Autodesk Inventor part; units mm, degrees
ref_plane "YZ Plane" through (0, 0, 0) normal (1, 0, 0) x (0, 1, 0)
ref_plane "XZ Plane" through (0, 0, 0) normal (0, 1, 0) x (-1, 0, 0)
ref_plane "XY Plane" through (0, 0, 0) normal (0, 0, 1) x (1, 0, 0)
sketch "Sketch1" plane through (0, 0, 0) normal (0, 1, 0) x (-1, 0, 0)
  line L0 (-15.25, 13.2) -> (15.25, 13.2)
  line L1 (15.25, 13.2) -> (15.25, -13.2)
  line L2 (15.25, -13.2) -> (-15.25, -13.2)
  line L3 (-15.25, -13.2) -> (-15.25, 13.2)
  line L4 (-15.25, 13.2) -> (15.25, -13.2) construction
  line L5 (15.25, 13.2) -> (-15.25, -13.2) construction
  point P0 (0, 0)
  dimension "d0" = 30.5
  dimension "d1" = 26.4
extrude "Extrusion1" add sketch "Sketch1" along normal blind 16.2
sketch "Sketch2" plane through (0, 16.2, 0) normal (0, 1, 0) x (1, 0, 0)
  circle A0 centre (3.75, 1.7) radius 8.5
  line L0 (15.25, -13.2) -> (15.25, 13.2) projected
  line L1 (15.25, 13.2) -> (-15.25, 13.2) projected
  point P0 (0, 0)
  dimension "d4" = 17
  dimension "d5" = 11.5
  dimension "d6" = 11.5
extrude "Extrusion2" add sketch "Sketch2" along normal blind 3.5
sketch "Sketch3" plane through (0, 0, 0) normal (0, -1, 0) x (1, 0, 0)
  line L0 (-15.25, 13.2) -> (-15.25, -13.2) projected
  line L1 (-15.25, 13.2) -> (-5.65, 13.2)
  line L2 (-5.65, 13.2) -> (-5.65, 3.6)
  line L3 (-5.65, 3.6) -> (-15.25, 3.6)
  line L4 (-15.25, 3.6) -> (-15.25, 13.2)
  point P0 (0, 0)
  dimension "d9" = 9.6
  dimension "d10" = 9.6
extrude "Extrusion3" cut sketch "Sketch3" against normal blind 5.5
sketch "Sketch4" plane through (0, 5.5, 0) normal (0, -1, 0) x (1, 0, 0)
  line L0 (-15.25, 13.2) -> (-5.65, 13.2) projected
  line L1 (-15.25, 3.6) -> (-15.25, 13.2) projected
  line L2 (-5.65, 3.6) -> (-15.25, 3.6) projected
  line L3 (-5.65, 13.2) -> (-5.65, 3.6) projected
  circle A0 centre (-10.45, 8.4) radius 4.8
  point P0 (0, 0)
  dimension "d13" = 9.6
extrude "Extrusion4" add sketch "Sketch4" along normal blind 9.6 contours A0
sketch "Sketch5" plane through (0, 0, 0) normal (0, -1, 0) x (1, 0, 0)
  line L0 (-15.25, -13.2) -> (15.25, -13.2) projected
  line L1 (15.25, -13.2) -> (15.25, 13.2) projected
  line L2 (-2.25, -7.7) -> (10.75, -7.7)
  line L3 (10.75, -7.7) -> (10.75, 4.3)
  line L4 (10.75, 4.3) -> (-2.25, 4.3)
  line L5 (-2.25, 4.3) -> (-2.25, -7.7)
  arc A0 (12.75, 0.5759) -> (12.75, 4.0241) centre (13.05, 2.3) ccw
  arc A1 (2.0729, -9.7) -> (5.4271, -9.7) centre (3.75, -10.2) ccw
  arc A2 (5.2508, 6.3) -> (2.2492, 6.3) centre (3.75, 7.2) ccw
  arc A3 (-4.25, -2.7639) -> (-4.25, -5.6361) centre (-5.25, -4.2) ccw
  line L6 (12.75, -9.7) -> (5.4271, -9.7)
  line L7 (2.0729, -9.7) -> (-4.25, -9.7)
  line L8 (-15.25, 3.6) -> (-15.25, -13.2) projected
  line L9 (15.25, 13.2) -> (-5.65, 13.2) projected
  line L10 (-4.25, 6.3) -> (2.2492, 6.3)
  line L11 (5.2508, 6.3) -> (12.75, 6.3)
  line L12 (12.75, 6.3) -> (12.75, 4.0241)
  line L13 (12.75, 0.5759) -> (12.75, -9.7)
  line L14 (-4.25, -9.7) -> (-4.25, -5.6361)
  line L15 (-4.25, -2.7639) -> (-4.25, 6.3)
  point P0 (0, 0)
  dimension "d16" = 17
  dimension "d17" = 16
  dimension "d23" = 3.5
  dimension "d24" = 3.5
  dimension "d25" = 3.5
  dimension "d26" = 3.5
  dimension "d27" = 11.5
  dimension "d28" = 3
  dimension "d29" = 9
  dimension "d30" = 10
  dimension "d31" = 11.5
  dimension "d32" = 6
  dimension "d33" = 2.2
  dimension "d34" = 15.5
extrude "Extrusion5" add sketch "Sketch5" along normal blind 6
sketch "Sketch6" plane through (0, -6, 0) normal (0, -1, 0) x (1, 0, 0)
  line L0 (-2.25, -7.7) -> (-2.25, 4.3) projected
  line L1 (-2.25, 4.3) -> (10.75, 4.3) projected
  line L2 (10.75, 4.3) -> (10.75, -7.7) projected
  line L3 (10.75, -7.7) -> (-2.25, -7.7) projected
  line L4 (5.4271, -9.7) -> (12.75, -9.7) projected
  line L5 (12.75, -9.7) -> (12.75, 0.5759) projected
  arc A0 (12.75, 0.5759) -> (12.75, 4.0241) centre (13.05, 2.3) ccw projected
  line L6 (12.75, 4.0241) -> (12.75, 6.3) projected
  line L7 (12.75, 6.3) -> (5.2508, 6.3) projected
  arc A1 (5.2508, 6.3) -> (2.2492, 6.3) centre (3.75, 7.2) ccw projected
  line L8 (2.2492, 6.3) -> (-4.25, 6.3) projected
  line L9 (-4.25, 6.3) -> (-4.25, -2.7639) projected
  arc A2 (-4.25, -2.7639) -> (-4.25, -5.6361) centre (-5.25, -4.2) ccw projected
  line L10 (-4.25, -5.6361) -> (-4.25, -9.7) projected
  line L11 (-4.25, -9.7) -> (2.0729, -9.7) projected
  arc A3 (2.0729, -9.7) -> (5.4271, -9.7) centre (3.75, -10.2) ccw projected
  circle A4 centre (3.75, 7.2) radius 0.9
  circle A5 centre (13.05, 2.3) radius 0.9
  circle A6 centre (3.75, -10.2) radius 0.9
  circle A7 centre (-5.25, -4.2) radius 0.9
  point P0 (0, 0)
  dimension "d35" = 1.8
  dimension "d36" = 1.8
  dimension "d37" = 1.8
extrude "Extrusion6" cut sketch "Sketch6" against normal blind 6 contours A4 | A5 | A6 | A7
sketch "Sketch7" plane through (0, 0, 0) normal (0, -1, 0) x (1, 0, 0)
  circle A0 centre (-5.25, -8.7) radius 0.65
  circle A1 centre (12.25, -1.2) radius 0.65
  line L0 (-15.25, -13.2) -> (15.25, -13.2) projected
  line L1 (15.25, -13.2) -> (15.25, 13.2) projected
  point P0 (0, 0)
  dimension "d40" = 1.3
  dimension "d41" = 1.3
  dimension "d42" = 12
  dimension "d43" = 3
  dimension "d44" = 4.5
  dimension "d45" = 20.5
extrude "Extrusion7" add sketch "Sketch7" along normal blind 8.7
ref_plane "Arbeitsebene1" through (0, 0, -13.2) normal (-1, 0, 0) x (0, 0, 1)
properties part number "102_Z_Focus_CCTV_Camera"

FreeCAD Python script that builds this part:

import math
import FreeCAD as App
import Part
import Sketcher
Q = App.Units.Quantity

doc = App.newDocument("Part")
body = doc.addObject("PartDesign::Body", "Body")

sketch1 = doc.addObject("Sketcher::SketchObject", "Sketch")
body.addObject(sketch1)
sketch1.AttachmentSupport = (doc.XZ_Plane, [""])
sketch1.MapMode = "FlatFace"
sketch1.addGeometry([
    Part.LineSegment(App.Vector(-15, 13, 0), App.Vector(15, 13, 0)),
    Part.LineSegment(App.Vector(15, 13, 0), App.Vector(15, -13, 0)),
    Part.LineSegment(App.Vector(15, -13, 0), App.Vector(-15, -13, 0)),
    Part.LineSegment(App.Vector(-15, -13, 0), App.Vector(-15, 13, 0)),
], False)
sketch1.addConstraint([
    Sketcher.Constraint("Coincident", 0, 2, 1, 1),
    Sketcher.Constraint("Coincident", 1, 2, 2, 1),
    Sketcher.Constraint("Coincident", 2, 2, 3, 1),
    Sketcher.Constraint("Coincident", 3, 2, 0, 1),
    Sketcher.Constraint("Horizontal", 0),
    Sketcher.Constraint("Vertical", 1),
    Sketcher.Constraint("Horizontal", 2),
    Sketcher.Constraint("Vertical", 3),
    Sketcher.Constraint("Symmetric", 0, 2, 2, 2, -1, 1),
    Sketcher.Constraint("DistanceX", 0, 1, 0, 2, Q("30.5 mm")),
    Sketcher.Constraint("DistanceY", 1, 2, 1, 1, Q("26.4 mm")),
])
pad1 = doc.addObject("PartDesign::Pad", "Pad")
body.addObject(pad1)
pad1.Profile = sketch1
pad1.Length = 16.2
pad1.Reversed = True

sketch2 = doc.addObject("Sketcher::SketchObject", "Sketch001")
body.addObject(sketch2)
sketch2.AttachmentSupport = (doc.XZ_Plane, [""])
sketch2.MapMode = "FlatFace"
sketch2.AttachmentOffset = App.Placement(App.Vector(0, 0, -16.2), App.Rotation())
sketch2.addGeometry(Part.Circle(App.Vector(4, -2, 0), App.Vector(0, 0, 1), 8), False)
sketch2.addConstraint([
    Sketcher.Constraint("Diameter", 0, Q("17 mm")),
    Sketcher.Constraint("DistanceY", 0, 3, -1, 1, Q("1.7 mm")),
    Sketcher.Constraint("DistanceX", -1, 1, 0, 3, Q("3.75 mm")),
])
pad2 = doc.addObject("PartDesign::Pad", "Pad001")
body.addObject(pad2)
pad2.Profile = sketch2
pad2.Length = 3.5
pad2.Reversed = True

sketch3 = doc.addObject("Sketcher::SketchObject", "Sketch002")
body.addObject(sketch3)
sketch3.AttachmentSupport = (doc.XZ_Plane, [""])
sketch3.MapMode = "FlatFace"
sketch3.addGeometry([
    Part.LineSegment(App.Vector(-6, 13, 0), App.Vector(-15, 13, 0)),
    Part.LineSegment(App.Vector(-15, 13, 0), App.Vector(-15, 4, 0)),
    Part.LineSegment(App.Vector(-15, 4, 0), App.Vector(-6, 4, 0)),
    Part.LineSegment(App.Vector(-6, 4, 0), App.Vector(-6, 13, 0)),
], False)
sketch3.addConstraint([
    Sketcher.Constraint("Coincident", 0, 2, 1, 1),
    Sketcher.Constraint("Coincident", 1, 2, 2, 1),
    Sketcher.Constraint("Coincident", 2, 2, 3, 1),
    Sketcher.Constraint("Coincident", 3, 2, 0, 1),
    Sketcher.Constraint("Horizontal", 0),
    Sketcher.Constraint("Vertical", 1),
    Sketcher.Constraint("Horizontal", 2),
    Sketcher.Constraint("Vertical", 3),
    Sketcher.Constraint("Equal", 2, 1),
    Sketcher.Constraint("DistanceX", 0, 2, 0, 1, Q("9.6 mm")),
    Sketcher.Constraint("DistanceY", -1, 1, 0, 2, Q("13.2 mm")),
    Sketcher.Constraint("DistanceX", 0, 2, -1, 1, Q("15.25 mm")),
])
pocket1 = doc.addObject("PartDesign::Pocket", "Pocket")
body.addObject(pocket1)
pocket1.Profile = sketch3
pocket1.Length = 5.5

sketch4 = doc.addObject("Sketcher::SketchObject", "Sketch003")
body.addObject(sketch4)
sketch4.AttachmentSupport = (doc.XZ_Plane, [""])
sketch4.MapMode = "FlatFace"
sketch4.AttachmentOffset = App.Placement(App.Vector(0, 0, -5.5), App.Rotation())
sketch4.addGeometry(Part.Circle(App.Vector(-10.4, 8.4, 0), App.Vector(0, 0, 1), 4.8), False)
sketch4.addConstraint([
    Sketcher.Constraint("Diameter", 0, Q("9.6 mm")),
    Sketcher.Constraint("DistanceY", -1, 1, 0, 3, Q("8.4 mm")),
    Sketcher.Constraint("DistanceX", 0, 3, -1, 1, Q("10.45 mm")),
])
pad3 = doc.addObject("PartDesign::Pad", "Pad002")
body.addObject(pad3)
pad3.Profile = sketch4
pad3.Length = 9.6

sketch5 = doc.addObject("Sketcher::SketchObject", "Sketch004")
body.addObject(sketch5)
sketch5.AttachmentSupport = (doc.XZ_Plane, [""])
sketch5.MapMode = "FlatFace"
sketch5.addGeometry([
    Part.LineSegment(App.Vector(12.8, -9.7, 0), App.Vector(12.8, 0.6, 0)),
    Part.ArcOfCircle(Part.Circle(App.Vector(13.1, 2.3, 0), App.Vector(0, 0, 1), 1.8), math.radians(-100), math.radians(100)),
    Part.LineSegment(App.Vector(12.8, 4, 0), App.Vector(12.8, 6.3, 0)),
    Part.LineSegment(App.Vector(12.8, 6.3, 0), App.Vector(5.3, 6.3, 0)),
    Part.ArcOfCircle(Part.Circle(App.Vector(3.8, 7.2, 0), App.Vector(0, 0, 1), 1.7), math.radians(-31), math.radians(211)),
    Part.LineSegment(App.Vector(2.2, 6.3, 0), App.Vector(-4.2, 6.3, 0)),
    Part.LineSegment(App.Vector(-4.2, 6.3, 0), App.Vector(-4.2, -2.8, 0)),
    Part.ArcOfCircle(Part.Circle(App.Vector(-5.2, -4.2, 0), App.Vector(0, 0, 1), 1.7), math.radians(55), math.radians(305)),
    Part.LineSegment(App.Vector(-4.2, -5.6, 0), App.Vector(-4.2, -9.7, 0)),
    Part.LineSegment(App.Vector(-4.2, -9.7, 0), App.Vector(2.1, -9.7, 0)),
    Part.ArcOfCircle(Part.Circle(App.Vector(3.8, -10.2, 0), App.Vector(0, 0, 1), 1.8), math.radians(163), math.radians(377)),
    Part.LineSegment(App.Vector(5.4, -9.7, 0), App.Vector(12.8, -9.7, 0)),
    Part.LineSegment(App.Vector(10.8, -7.7, 0), App.Vector(-2.2, -7.7, 0)),
    Part.LineSegment(App.Vector(-2.2, -7.7, 0), App.Vector(-2.2, 4.3, 0)),
    Part.LineSegment(App.Vector(-2.2, 4.3, 0), App.Vector(10.8, 4.3, 0)),
    Part.LineSegment(App.Vector(10.8, 4.3, 0), App.Vector(10.8, -7.7, 0)),
], False)
sketch5.addConstraint([
    Sketcher.Constraint("Coincident", 0, 2, 1, 1),
    Sketcher.Constraint("Coincident", 1, 2, 2, 1),
    Sketcher.Constraint("Coincident", 2, 2, 3, 1),
    Sketcher.Constraint("Coincident", 3, 2, 4, 1),
    Sketcher.Constraint("Coincident", 4, 2, 5, 1),
    Sketcher.Constraint("Coincident", 5, 2, 6, 1),
    Sketcher.Constraint("Coincident", 6, 2, 7, 1),
    Sketcher.Constraint("Coincident", 7, 2, 8, 1),
    Sketcher.Constraint("Coincident", 8, 2, 9, 1),
    Sketcher.Constraint("Coincident", 9, 2, 10, 1),
    Sketcher.Constraint("Coincident", 10, 2, 11, 1),
    Sketcher.Constraint("Coincident", 11, 2, 0, 1),
    Sketcher.Constraint("Coincident", 12, 2, 13, 1),
    Sketcher.Constraint("Coincident", 13, 2, 14, 1),
    Sketcher.Constraint("Coincident", 14, 2, 15, 1),
    Sketcher.Constraint("Coincident", 15, 2, 12, 1),
    Sketcher.Constraint("Vertical", 0),
    Sketcher.Constraint("Vertical", 2),
    Sketcher.Constraint("Horizontal", 3),
    Sketcher.Constraint("Horizontal", 5),
    Sketcher.Constraint("Vertical", 6),
    Sketcher.Constraint("Vertical", 8),
    Sketcher.Constraint("Horizontal", 9),
    Sketcher.Constraint("Horizontal", 11),
    Sketcher.Constraint("Horizontal", 12),
    Sketcher.Constraint("Vertical", 13),
    Sketcher.Constraint("Horizontal", 14),
    Sketcher.Constraint("Vertical", 15),
    Sketcher.Constraint("Equal", 1, 4),
    Sketcher.Constraint("Equal", 4, 7),
    Sketcher.Constraint("Equal", 7, 10),
    Sketcher.Constraint("Horizontal", 3, 2, 4, 2),
    Sketcher.Constraint("Horizontal", 9, 2, 10, 2),
    Sketcher.Constraint("Vertical", 4, 3, 10, 3),
    Sketcher.Constraint("Vertical", 0, 2, 1, 2),
    Sketcher.Constraint("Vertical", 6, 2, 7, 2),
    Sketcher.Constraint("Radius", 1, Q("1.75 mm")),
    Sketcher.Constraint("DistanceX", 7, 3, 4, 3, Q("9 mm")),
    Sketcher.Constraint("DistanceY", 10, 3, 7, 3, Q("6 mm")),
    Sketcher.Constraint("DistanceX", 4, 3, 0, 2, Q("9 mm")),
    Sketcher.Constraint("DistanceX", 5, 2, 2, 2, Q("17 mm")),
    Sketcher.Constraint("DistanceY", 8, 2, 5, 2, Q("16 mm")),
    Sketcher.Constraint("DistanceX", 7, 3, 12, 2, Q("3 mm")),
    Sketcher.Constraint("DistanceY", 12, 2, 7, 3, Q("3.5 mm")),
    Sketcher.Constraint("DistanceX", 12, 2, 12, 1, Q("13 mm")),
    Sketcher.Constraint("DistanceY", 13, 1, 13, 2, Q("12 mm")),
    Sketcher.Constraint("DistanceY", 1, 3, 2, 2, Q("4 mm")),
    Sketcher.Constraint("DistanceY", 8, 2, 12, 2, Q("2 mm")),
    Sketcher.Constraint("DistanceY", -1, 1, 1, 3, Q("2.3 mm")),
    Sketcher.Constraint("DistanceY", -1, 1, 4, 3, Q("7.2 mm")),
    Sketcher.Constraint("DistanceX", 4, 3, 1, 3, Q("9.3 mm")),
    Sketcher.Constraint("DistanceX", -1, 1, 1, 3, Q("13.05 mm")),
])
pad4 = doc.addObject("PartDesign::Pad", "Pad003")
body.addObject(pad4)
pad4.Profile = sketch5
pad4.Length = 6

sketch6 = doc.addObject("Sketcher::SketchObject", "Sketch005")
body.addObject(sketch6)
sketch6.AttachmentSupport = (doc.XZ_Plane, [""])
sketch6.MapMode = "FlatFace"
sketch6.AttachmentOffset = App.Placement(App.Vector(0, 0, 6), App.Rotation())
sketch6.addGeometry([
    Part.Circle(App.Vector(3.8, 7.2, 0), App.Vector(0, 0, 1), 0.9),
    Part.Circle(App.Vector(13.1, 2.3, 0), App.Vector(0, 0, 1), 0.9),
    Part.Circle(App.Vector(3.8, -10.2, 0), App.Vector(0, 0, 1), 0.9),
    Part.Circle(App.Vector(-5.2, -4.2, 0), App.Vector(0, 0, 1), 0.9),
], False)
sketch6.addConstraint([
    Sketcher.Constraint("Equal", 0, 1),
    Sketcher.Constraint("Equal", 1, 2),
    Sketcher.Constraint("Equal", 2, 3),
    Sketcher.Constraint("Vertical", 0, 3, 2, 3),
    Sketcher.Constraint("Diameter", 0, Q("1.8 mm")),
    Sketcher.Constraint("DistanceX", 3, 3, 2, 3, Q("9 mm")),
    Sketcher.Constraint("DistanceY", 2, 3, 3, 3, Q("6 mm")),
    Sketcher.Constraint("DistanceY", -1, 1, 0, 3, Q("7.2 mm")),
    Sketcher.Constraint("DistanceY", -1, 1, 1, 3, Q("2.3 mm")),
    Sketcher.Constraint("DistanceY", 2, 3, -1, 1, Q("10.2 mm")),
    Sketcher.Constraint("DistanceX", 0, 3, 1, 3, Q("9.3 mm")),
    Sketcher.Constraint("DistanceX", -1, 1, 0, 3, Q("3.75 mm")),
])
pocket2 = doc.addObject("PartDesign::Pocket", "Pocket001")
body.addObject(pocket2)
pocket2.Profile = sketch6
pocket2.Length = 6

sketch7 = doc.addObject("Sketcher::SketchObject", "Sketch006")
body.addObject(sketch7)
sketch7.AttachmentSupport = (doc.XZ_Plane, [""])
sketch7.MapMode = "FlatFace"
sketch7.addGeometry([
    Part.Circle(App.Vector(-5.2, -8.7, 0), App.Vector(0, 0, 1), 0.7),
    Part.Circle(App.Vector(12.2, -1.2, 0), App.Vector(0, 0, 1), 0.7),
], False)
sketch7.addConstraint([
    Sketcher.Constraint("Equal", 0, 1),
    Sketcher.Constraint("Diameter", 0, Q("1.3 mm")),
    Sketcher.Constraint("DistanceY", 0, 3, -1, 1, Q("8.7 mm")),
    Sketcher.Constraint("DistanceY", 1, 3, -1, 1, Q("1.2 mm")),
    Sketcher.Constraint("DistanceX", 0, 3, 1, 3, Q("17.5 mm")),
    Sketcher.Constraint("DistanceX", 0, 3, -1, 1, Q("5.25 mm")),
])
pad5 = doc.addObject("PartDesign::Pad", "Pad004")
body.addObject(pad5)
pad5.Profile = sketch7
pad5.Length = 8.7

doc.recompute()
